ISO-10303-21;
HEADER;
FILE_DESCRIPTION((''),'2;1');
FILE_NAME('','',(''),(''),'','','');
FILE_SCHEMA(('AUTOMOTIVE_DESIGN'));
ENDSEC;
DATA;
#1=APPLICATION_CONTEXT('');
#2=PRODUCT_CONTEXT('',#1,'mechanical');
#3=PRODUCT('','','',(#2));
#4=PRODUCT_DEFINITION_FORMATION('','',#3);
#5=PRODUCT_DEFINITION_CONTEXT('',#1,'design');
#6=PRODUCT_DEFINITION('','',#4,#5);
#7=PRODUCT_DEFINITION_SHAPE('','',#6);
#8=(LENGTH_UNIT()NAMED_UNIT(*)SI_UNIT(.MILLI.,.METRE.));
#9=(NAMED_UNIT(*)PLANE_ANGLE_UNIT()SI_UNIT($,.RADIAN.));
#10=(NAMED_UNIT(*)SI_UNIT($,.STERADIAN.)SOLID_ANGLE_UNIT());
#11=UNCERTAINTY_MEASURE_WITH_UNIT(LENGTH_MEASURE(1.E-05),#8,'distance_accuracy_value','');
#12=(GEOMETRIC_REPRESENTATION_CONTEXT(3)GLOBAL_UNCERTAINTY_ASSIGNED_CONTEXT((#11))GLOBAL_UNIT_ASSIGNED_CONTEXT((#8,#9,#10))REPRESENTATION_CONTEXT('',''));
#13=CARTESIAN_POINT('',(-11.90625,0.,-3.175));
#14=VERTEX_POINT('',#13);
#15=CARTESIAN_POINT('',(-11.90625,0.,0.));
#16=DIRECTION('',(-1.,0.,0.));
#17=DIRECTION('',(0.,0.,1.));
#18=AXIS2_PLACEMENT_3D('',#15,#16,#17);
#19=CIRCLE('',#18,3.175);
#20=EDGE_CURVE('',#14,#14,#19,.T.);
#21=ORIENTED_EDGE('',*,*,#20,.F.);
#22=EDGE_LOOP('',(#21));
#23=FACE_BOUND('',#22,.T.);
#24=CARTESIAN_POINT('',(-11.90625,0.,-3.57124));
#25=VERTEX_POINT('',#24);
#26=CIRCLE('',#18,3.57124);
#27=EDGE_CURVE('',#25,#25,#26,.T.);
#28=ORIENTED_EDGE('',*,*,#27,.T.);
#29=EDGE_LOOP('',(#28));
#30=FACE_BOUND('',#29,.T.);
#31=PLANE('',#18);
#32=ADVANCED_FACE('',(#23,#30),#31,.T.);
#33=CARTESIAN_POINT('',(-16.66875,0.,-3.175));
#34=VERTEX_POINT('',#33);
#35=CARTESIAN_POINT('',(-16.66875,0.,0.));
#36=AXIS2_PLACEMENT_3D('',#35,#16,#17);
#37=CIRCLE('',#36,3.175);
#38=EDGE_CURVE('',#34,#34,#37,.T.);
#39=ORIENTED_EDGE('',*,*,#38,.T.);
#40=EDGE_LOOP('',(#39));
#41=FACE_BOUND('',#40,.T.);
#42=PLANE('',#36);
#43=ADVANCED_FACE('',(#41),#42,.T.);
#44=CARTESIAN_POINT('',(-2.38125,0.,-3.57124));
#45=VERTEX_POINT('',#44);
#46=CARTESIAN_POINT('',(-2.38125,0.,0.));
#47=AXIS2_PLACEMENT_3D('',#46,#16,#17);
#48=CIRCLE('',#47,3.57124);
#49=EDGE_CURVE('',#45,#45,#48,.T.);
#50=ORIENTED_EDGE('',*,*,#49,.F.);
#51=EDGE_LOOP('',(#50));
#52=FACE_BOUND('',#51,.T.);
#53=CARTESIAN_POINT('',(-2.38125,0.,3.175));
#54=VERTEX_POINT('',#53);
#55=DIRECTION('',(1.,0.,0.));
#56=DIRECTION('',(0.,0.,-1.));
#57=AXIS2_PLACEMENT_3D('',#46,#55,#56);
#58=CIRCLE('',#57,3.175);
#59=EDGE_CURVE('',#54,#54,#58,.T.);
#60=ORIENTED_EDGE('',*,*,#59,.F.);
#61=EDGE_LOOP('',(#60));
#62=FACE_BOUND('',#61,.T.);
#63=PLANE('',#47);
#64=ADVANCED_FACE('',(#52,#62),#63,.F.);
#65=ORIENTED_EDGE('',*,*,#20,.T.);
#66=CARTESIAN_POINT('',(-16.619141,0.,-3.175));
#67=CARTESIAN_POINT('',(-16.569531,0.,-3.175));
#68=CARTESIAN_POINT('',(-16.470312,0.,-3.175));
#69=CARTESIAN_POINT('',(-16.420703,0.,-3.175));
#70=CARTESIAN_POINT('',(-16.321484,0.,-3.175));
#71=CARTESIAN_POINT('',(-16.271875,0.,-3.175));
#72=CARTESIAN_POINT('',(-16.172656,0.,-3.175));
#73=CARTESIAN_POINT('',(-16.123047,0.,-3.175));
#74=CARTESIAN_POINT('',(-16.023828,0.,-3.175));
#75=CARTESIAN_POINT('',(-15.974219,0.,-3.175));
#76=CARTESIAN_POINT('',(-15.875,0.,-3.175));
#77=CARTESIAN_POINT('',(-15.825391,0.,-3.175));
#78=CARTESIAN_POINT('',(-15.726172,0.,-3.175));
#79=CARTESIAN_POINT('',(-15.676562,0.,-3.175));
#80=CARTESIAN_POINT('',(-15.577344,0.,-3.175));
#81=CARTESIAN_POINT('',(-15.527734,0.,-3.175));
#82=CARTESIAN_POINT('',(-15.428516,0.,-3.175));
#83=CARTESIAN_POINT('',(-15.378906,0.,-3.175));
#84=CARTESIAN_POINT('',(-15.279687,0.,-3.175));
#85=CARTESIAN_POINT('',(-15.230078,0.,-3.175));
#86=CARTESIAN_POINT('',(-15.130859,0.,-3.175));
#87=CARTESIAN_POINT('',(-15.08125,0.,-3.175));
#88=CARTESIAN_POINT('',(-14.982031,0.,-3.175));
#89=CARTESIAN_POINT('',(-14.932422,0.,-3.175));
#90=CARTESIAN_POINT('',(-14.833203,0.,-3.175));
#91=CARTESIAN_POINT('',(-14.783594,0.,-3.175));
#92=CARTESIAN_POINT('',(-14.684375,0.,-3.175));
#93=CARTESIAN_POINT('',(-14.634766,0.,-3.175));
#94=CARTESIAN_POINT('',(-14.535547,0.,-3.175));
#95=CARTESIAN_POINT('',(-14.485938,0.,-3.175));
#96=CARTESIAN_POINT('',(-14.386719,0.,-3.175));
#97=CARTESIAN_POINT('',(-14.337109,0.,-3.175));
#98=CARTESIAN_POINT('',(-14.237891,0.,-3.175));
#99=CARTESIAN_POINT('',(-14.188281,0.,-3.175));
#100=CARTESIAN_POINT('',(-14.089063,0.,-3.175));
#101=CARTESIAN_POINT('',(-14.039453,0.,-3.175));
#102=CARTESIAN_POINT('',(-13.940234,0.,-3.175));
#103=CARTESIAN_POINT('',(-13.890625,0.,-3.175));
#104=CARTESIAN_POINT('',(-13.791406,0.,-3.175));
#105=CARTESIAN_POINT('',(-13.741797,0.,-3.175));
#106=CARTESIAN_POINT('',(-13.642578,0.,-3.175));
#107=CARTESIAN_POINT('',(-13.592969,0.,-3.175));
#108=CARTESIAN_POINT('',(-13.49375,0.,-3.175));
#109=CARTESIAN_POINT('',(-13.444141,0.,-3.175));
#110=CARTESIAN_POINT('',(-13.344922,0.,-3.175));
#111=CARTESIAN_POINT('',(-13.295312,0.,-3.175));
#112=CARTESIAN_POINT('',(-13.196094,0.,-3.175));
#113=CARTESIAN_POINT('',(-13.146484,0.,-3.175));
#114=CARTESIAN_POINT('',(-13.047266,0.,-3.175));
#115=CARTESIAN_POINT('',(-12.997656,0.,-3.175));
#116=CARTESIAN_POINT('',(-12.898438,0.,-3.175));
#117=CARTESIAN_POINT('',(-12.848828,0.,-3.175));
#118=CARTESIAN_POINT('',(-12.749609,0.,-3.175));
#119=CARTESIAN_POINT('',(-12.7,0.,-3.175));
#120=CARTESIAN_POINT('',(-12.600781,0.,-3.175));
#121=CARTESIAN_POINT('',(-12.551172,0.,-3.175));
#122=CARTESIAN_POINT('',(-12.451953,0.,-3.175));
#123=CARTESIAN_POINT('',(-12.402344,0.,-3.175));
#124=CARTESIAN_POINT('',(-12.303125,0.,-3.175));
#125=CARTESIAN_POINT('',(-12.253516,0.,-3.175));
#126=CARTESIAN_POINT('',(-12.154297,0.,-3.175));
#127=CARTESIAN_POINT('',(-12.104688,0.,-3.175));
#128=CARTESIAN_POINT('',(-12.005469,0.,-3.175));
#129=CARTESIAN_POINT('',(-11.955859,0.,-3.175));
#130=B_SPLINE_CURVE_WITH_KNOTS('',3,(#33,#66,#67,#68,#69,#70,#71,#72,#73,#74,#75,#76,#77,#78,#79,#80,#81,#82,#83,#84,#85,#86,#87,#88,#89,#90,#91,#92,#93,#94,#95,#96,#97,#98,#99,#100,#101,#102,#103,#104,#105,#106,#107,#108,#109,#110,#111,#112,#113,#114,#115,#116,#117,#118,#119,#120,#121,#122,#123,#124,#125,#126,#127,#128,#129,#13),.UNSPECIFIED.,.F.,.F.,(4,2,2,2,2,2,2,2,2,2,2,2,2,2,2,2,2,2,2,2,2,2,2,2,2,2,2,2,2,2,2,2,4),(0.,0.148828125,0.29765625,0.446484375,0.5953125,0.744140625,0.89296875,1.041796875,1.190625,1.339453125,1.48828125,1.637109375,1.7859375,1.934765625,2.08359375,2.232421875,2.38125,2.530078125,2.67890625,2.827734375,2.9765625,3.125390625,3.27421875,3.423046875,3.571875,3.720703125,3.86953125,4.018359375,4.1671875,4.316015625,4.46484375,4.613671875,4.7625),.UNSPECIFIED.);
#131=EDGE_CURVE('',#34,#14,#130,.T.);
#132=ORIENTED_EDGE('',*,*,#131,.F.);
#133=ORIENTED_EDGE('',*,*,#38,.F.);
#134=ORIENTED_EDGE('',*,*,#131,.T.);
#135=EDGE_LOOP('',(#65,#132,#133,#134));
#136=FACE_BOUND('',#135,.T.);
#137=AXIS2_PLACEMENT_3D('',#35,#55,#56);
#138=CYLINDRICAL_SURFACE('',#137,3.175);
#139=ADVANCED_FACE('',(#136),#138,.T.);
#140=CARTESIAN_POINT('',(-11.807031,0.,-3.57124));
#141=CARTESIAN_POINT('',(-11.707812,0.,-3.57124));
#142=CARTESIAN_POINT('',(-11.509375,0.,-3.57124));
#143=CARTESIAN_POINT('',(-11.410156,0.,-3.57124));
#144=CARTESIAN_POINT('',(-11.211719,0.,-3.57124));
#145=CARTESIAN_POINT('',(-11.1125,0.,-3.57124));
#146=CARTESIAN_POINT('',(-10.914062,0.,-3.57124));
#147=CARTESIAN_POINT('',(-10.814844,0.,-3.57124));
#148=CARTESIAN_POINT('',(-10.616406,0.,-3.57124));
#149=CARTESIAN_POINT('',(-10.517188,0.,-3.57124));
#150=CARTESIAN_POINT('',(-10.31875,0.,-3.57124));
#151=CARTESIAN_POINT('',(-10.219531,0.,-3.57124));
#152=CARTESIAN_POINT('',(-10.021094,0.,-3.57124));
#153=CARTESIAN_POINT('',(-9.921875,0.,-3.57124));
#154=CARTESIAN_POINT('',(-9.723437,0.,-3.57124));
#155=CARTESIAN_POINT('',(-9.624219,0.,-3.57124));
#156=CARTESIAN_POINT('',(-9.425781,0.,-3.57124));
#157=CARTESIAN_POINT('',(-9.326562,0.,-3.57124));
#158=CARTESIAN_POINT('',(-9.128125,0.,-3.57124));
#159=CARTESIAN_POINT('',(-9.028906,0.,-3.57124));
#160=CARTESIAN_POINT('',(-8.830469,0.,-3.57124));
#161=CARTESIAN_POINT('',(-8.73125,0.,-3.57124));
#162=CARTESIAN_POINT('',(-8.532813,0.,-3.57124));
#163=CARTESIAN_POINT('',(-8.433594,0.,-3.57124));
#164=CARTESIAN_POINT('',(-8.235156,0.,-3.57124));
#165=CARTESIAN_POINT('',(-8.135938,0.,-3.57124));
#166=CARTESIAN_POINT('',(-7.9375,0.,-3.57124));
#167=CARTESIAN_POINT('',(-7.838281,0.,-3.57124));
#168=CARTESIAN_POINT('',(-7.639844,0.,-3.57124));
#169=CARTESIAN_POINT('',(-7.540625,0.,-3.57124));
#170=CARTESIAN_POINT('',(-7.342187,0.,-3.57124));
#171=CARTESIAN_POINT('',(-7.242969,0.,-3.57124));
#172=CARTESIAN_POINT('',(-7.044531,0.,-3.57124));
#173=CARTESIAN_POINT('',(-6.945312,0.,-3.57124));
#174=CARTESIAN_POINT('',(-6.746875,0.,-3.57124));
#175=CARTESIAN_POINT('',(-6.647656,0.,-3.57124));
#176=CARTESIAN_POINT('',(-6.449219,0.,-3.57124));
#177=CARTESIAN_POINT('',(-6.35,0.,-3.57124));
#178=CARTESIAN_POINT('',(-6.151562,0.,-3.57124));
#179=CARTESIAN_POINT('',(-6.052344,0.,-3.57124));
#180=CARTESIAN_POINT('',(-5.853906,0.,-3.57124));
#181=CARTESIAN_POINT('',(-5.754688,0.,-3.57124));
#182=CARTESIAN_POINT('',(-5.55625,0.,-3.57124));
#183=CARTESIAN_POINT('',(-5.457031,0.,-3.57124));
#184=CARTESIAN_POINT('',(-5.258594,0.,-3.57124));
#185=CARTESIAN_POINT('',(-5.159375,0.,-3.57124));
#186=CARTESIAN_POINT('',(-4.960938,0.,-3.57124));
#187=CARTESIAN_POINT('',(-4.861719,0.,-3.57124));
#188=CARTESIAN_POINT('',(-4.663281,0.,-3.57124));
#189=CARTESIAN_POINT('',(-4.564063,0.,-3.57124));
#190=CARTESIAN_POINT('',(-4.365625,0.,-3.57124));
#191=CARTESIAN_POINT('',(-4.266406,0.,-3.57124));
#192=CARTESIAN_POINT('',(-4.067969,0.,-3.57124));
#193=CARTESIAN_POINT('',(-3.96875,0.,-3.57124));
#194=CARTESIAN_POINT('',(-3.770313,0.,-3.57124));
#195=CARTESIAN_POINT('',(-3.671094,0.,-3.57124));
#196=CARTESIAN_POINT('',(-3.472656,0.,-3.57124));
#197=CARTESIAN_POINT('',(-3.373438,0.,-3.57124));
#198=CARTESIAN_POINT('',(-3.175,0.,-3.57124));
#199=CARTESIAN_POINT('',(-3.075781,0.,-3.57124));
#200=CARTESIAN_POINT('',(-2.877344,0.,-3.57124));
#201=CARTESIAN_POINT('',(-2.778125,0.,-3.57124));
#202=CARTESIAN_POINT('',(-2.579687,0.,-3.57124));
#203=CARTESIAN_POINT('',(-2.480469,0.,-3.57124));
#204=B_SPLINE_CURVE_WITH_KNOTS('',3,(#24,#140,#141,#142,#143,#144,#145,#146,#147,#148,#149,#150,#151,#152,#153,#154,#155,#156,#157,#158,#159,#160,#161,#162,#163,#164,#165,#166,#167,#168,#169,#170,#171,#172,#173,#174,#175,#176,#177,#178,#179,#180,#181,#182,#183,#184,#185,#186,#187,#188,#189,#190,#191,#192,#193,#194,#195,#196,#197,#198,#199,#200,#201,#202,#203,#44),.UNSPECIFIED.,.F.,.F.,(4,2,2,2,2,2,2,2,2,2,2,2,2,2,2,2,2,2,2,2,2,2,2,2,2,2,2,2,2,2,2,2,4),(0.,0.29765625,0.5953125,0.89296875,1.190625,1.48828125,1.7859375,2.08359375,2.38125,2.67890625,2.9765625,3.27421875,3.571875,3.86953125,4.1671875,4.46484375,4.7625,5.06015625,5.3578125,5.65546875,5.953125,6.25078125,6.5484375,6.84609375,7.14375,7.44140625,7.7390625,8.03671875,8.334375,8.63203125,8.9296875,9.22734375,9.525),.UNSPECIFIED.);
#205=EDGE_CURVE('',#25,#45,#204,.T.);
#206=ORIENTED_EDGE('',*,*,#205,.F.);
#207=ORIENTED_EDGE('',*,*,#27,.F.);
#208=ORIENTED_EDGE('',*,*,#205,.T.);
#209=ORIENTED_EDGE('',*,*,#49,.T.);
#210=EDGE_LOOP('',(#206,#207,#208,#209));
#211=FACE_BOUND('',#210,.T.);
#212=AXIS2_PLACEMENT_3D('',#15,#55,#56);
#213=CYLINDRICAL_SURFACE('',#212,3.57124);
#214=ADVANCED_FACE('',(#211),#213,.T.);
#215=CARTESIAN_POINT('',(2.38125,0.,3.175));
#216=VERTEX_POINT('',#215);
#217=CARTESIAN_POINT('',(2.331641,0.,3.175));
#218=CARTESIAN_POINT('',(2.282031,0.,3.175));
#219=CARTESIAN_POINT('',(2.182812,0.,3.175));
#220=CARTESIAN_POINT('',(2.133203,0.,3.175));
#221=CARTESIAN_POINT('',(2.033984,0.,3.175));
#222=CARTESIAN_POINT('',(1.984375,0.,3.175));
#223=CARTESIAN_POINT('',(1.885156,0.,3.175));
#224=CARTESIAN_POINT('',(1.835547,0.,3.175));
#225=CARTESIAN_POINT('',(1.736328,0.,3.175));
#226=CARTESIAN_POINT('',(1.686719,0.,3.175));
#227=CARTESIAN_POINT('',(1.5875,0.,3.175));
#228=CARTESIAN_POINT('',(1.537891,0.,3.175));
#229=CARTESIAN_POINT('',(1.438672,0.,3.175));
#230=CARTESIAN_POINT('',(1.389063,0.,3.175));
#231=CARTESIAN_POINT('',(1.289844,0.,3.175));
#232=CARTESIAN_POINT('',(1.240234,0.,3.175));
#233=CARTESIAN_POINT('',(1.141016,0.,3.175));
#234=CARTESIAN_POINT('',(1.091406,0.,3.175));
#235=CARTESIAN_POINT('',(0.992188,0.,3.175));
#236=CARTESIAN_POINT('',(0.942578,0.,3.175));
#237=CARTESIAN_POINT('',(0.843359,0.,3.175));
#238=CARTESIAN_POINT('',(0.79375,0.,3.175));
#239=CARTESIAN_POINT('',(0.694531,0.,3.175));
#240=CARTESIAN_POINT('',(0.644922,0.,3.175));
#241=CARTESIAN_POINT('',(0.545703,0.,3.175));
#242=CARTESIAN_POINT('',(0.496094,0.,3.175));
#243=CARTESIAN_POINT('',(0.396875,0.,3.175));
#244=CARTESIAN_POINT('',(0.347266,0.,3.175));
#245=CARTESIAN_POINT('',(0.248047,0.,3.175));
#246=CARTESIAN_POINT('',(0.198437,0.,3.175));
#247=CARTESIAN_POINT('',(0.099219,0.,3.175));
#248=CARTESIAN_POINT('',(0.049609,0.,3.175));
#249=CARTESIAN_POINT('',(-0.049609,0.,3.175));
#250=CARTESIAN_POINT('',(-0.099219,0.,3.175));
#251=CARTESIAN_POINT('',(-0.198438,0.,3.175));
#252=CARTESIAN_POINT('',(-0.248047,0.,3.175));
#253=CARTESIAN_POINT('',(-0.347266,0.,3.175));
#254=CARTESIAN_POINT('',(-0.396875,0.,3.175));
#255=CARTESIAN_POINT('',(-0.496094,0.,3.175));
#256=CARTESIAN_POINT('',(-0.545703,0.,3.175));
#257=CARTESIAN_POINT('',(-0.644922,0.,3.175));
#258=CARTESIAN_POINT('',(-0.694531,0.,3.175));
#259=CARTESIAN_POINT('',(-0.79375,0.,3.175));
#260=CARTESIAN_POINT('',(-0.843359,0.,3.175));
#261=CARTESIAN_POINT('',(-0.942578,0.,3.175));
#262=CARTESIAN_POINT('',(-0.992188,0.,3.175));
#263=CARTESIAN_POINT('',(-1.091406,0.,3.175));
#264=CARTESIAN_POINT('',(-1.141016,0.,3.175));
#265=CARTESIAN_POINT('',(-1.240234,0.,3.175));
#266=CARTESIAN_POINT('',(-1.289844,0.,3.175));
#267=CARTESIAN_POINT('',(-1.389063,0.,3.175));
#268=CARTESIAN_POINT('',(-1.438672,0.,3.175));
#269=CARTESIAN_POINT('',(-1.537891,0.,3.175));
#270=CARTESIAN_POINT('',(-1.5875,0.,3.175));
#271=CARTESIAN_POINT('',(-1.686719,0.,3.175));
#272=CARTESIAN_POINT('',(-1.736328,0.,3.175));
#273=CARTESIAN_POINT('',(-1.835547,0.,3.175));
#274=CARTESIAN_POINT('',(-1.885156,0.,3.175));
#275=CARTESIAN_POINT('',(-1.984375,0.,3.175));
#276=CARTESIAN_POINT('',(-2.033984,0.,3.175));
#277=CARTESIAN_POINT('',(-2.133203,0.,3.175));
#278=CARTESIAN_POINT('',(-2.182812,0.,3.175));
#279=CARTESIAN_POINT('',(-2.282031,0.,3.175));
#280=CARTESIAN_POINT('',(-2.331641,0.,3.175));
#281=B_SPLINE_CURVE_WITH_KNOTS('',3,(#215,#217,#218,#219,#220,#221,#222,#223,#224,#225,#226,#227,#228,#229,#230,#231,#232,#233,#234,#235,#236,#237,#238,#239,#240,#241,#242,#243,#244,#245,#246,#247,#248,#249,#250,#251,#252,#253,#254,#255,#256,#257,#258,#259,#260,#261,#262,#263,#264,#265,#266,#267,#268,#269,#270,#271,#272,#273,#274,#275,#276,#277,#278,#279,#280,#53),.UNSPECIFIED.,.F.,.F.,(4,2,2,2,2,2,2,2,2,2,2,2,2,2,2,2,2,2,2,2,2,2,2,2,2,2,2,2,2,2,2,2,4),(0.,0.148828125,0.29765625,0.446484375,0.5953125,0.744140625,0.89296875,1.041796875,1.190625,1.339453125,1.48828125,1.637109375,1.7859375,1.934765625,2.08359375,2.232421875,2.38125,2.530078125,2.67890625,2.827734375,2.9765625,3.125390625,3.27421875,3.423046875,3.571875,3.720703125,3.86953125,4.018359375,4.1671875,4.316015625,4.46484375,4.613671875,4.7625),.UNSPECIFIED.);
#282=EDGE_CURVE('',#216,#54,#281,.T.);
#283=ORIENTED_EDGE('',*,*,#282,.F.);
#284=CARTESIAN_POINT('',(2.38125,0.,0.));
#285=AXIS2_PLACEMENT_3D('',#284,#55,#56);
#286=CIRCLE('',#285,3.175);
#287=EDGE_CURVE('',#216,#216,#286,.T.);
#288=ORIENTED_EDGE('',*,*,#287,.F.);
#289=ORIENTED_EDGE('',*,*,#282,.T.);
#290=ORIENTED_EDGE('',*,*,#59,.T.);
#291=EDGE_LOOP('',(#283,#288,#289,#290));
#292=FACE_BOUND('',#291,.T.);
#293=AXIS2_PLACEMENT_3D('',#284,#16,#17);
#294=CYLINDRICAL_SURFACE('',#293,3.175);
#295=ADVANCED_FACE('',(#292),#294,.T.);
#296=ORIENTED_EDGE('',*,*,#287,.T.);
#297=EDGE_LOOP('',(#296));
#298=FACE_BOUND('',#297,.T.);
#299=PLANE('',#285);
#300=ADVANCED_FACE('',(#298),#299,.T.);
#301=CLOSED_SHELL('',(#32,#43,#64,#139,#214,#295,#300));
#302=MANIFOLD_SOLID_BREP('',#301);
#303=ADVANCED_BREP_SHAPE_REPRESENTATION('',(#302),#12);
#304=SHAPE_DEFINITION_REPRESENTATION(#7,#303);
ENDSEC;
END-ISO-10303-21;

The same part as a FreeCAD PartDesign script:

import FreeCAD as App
import Part
import Sketcher

V = App.Vector
Q = App.Units.Quantity

doc = App.newDocument("Part")
body = doc.addObject("PartDesign::Body", "Body")

sketch1 = doc.addObject("Sketcher::SketchObject", "Sketch")
body.addObject(sketch1)
sketch1.AttachmentSupport = (doc.YZ_Plane, [""])
sketch1.MapMode = "FlatFace"
sketch1.addGeometry(Part.Circle(V(0, 0, 0), V(0, 0, 1), 3.175), False)
sketch1.addConstraint(Sketcher.Constraint("Coincident", 0, 3, -1, 1))
sketch1.addConstraint(Sketcher.Constraint("Diameter", 0, Q("0.25 in")))
pad1 = doc.addObject("PartDesign::Pad", "Pad")
body.addObject(pad1)
pad1.Profile = sketch1
pad1.Length = Q("0.1875 in")
pad1.Midplane = True

sketch2 = doc.addObject("Sketcher::SketchObject", "Sketch001")
body.addObject(sketch2)
sketch2.AttachmentSupport = (doc.YZ_Plane, [""])
sketch2.MapMode = "FlatFace"
sketch2.AttachmentOffset = App.Placement(V(0, 0, -0.09375 * 25.4), App.Rotation())
sketch2.addGeometry(Part.Circle(V(0, 0, 0), V(0, 0, 1), 3.57124), False)
sketch2.addConstraint(Sketcher.Constraint("Coincident", 0, 3, -1, 1))
sketch2.addConstraint(Sketcher.Constraint("Diameter", 0, Q("0.2812 in")))
pad2 = doc.addObject("PartDesign::Pad", "Pad001")
body.addObject(pad2)
pad2.Profile = sketch2
pad2.Length = Q("0.375 in")
pad2.Reversed = True

sketch3 = doc.addObject("Sketcher::SketchObject", "Sketch002")
body.addObject(sketch3)
sketch3.AttachmentSupport = (doc.YZ_Plane, [""])
sketch3.MapMode = "FlatFace"
sketch3.AttachmentOffset = App.Placement(V(0, 0, -0.46875 * 25.4), App.Rotation())
sketch3.addGeometry(Part.Circle(V(0, 0, 0), V(0, 0, 1), 3.175), False)
sketch3.addConstraint(Sketcher.Constraint("Coincident", 0, 3, -1, 1))
sketch3.addConstraint(Sketcher.Constraint("Diameter", 0, Q("0.25 in")))
pad3 = doc.addObject("PartDesign::Pad", "Pad002")
body.addObject(pad3)
pad3.Profile = sketch3
pad3.Length = Q("0.1875 in")
pad3.Reversed = True

doc.recompute()
